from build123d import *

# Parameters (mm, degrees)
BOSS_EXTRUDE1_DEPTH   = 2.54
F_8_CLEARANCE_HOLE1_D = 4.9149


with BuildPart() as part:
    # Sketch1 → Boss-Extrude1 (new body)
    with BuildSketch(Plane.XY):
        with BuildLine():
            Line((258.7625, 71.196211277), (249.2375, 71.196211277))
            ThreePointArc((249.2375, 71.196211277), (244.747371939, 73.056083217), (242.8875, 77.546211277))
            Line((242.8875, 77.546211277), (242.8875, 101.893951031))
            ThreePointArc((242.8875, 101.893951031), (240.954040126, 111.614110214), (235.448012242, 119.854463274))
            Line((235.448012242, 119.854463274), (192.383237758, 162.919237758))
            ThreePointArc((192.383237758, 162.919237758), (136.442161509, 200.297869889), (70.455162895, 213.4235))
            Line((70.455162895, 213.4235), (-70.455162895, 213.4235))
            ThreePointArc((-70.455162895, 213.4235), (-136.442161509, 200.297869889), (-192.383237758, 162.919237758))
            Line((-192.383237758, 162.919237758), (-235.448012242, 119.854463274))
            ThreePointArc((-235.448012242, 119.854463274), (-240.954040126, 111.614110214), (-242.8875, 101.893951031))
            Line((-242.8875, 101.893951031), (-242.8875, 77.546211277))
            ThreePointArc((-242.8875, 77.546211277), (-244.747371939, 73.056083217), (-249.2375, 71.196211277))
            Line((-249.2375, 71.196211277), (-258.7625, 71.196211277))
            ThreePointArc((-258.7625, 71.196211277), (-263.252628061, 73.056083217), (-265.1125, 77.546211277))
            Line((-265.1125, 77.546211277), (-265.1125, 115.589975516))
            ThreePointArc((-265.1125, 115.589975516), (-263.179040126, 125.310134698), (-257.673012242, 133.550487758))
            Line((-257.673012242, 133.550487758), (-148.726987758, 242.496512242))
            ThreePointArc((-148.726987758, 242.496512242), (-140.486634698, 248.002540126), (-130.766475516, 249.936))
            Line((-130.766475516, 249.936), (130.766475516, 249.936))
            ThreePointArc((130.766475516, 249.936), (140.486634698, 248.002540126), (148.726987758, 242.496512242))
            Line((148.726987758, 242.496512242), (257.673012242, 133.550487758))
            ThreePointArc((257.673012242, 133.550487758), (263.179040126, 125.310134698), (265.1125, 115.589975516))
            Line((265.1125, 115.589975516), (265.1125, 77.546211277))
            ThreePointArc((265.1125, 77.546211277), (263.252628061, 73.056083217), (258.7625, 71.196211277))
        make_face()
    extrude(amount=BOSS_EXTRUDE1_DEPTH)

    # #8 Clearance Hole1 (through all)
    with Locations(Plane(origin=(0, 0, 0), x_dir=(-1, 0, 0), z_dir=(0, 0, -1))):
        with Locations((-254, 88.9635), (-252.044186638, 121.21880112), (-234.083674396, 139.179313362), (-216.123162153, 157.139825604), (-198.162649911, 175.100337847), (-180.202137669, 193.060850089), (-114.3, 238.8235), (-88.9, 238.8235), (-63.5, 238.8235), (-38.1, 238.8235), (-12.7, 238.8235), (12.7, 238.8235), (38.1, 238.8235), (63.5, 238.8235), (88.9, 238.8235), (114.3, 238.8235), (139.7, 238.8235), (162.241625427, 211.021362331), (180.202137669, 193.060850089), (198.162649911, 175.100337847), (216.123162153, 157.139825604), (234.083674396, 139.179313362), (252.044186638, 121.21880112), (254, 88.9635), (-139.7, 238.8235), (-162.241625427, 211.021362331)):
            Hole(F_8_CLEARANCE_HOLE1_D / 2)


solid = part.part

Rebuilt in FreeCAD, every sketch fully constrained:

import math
import FreeCAD as App
import Part
import Sketcher
from FreeCAD import Vector
Q = App.Units.Quantity

doc = App.newDocument("Part")
body = doc.addObject("PartDesign::Body", "Body")

# Sketch on XY plane
sketch1 = body.newObject("Sketcher::SketchObject", "Sketch")
sketch1.AttachmentSupport = (doc.getObject("XY_Plane"), [""])
sketch1.MapMode = "FlatFace"
sketch1.addGeometry([
    Part.LineSegment(Vector(249, 71, 0), Vector(259, 71, 0)),  # 0
    Part.ArcOfCircle(Part.Circle(Vector(259, 78, 0), Vector(0, 0, 1), 6), math.radians(-90), math.radians(0)),  # 1
    Part.LineSegment(Vector(265, 78, 0), Vector(265, 116, 0)),  # 2
    Part.ArcOfCircle(Part.Circle(Vector(240, 116, 0), Vector(0, 0, 1), 25), math.radians(0), math.radians(45)),  # 3
    Part.LineSegment(Vector(258, 134, 0), Vector(149, 242, 0)),  # 4
    Part.ArcOfCircle(Part.Circle(Vector(131, 225, 0), Vector(0, 0, 1), 25), math.radians(45), math.radians(90)),  # 5
    Part.LineSegment(Vector(131, 250, 0), Vector(-131, 250, 0)),  # 6
    Part.ArcOfCircle(Part.Circle(Vector(-131, 225, 0), Vector(0, 0, 1), 25), math.radians(90), math.radians(135)),  # 7
    Part.LineSegment(Vector(-149, 242, 0), Vector(-258, 134, 0)),  # 8
    Part.ArcOfCircle(Part.Circle(Vector(-240, 116, 0), Vector(0, 0, 1), 25), math.radians(135), math.radians(180)),  # 9
    Part.LineSegment(Vector(-265, 116, 0), Vector(-265, 78, 0)),  # 10
    Part.ArcOfCircle(Part.Circle(Vector(-259, 78, 0), Vector(0, 0, 1), 6), math.radians(180), math.radians(270)),  # 11
    Part.LineSegment(Vector(-259, 71, 0), Vector(-249, 71, 0)),  # 12
    Part.ArcOfCircle(Part.Circle(Vector(-249, 78, 0), Vector(0, 0, 1), 6), math.radians(-90), math.radians(0)),  # 13
    Part.LineSegment(Vector(-243, 78, 0), Vector(-243, 102, 0)),  # 14
    Part.ArcOfCircle(Part.Circle(Vector(-217, 102, 0), Vector(0, 0, 1), 25), math.radians(135), math.radians(180)),  # 15
    Part.LineSegment(Vector(-235, 120, 0), Vector(-192, 163, 0)),  # 16
    Part.ArcOfCircle(Part.Circle(Vector(-70, 41, 0), Vector(0, 0, 1), 172), math.radians(90), math.radians(135)),  # 17
    Part.LineSegment(Vector(-70, 213, 0), Vector(70, 213, 0)),  # 18
    Part.ArcOfCircle(Part.Circle(Vector(70, 41, 0), Vector(0, 0, 1), 172), math.radians(45), math.radians(90)),  # 19
    Part.LineSegment(Vector(192, 163, 0), Vector(235, 120, 0)),  # 20
    Part.ArcOfCircle(Part.Circle(Vector(217, 102, 0), Vector(0, 0, 1), 25), math.radians(0), math.radians(45)),  # 21
    Part.LineSegment(Vector(243, 102, 0), Vector(243, 78, 0)),  # 22
    Part.ArcOfCircle(Part.Circle(Vector(249, 78, 0), Vector(0, 0, 1), 6), math.radians(180), math.radians(270)),  # 23
], False)
sketch1.addConstraint([
    Sketcher.Constraint("Tangent", 0, 2, 1, 1),
    Sketcher.Constraint("Tangent", 1, 2, 2, 1),
    Sketcher.Constraint("Tangent", 2, 2, 3, 1),
    Sketcher.Constraint("Tangent", 3, 2, 4, 1),
    Sketcher.Constraint("Tangent", 4, 2, 5, 1),
    Sketcher.Constraint("Tangent", 5, 2, 6, 1),
    Sketcher.Constraint("Tangent", 6, 2, 7, 1),
    Sketcher.Constraint("Tangent", 7, 2, 8, 1),
    Sketcher.Constraint("Tangent", 8, 2, 9, 1),
    Sketcher.Constraint("Tangent", 9, 2, 10, 1),
    Sketcher.Constraint("Tangent", 10, 2, 11, 1),
    Sketcher.Constraint("Tangent", 11, 2, 12, 1),
    Sketcher.Constraint("Tangent", 12, 2, 13, 1),
    Sketcher.Constraint("Tangent", 13, 2, 14, 1),
    Sketcher.Constraint("Tangent", 14, 2, 15, 2),
    Sketcher.Constraint("Tangent", 15, 1, 16, 1),
    Sketcher.Constraint("Tangent", 16, 2, 17, 2),
    Sketcher.Constraint("Tangent", 17, 1, 18, 1),
    Sketcher.Constraint("Tangent", 18, 2, 19, 2),
    Sketcher.Constraint("Tangent", 19, 1, 20, 1),
    Sketcher.Constraint("Tangent", 20, 2, 21, 2),
    Sketcher.Constraint("Tangent", 21, 1, 22, 1),
    Sketcher.Constraint("Tangent", 22, 2, 23, 1),
    Sketcher.Constraint("Tangent", 23, 2, 0, 1),
    Sketcher.Constraint("Horizontal", 0),
    Sketcher.Constraint("Vertical", 2),
    Sketcher.Constraint("Horizontal", 6),
    Sketcher.Constraint("Vertical", 10),
    Sketcher.Constraint("Horizontal", 12),
    Sketcher.Constraint("Vertical", 14),
    Sketcher.Constraint("Horizontal", 18),
    Sketcher.Constraint("Vertical", 22),
    Sketcher.Constraint("Equal", 3, 5),
    Sketcher.Constraint("Equal", 5, 7),
    Sketcher.Constraint("Equal", 7, 9),
    Sketcher.Constraint("Equal", 1, 11),
    Sketcher.Constraint("Equal", 11, 13),
    Sketcher.Constraint("Equal", 9, 15),
    Sketcher.Constraint("Equal", 17, 19),
    Sketcher.Constraint("Equal", 15, 21),
    Sketcher.Constraint("Equal", 13, 23),
    Sketcher.Constraint("Symmetric", 3, 3, 9, 3, -2),
    Sketcher.Constraint("Symmetric", 15, 3, 21, 3, -2),
    Sketcher.Constraint("Perpendicular", 4, 8),
    Sketcher.Constraint("Parallel", 8, 16),
    Sketcher.Constraint("Perpendicular", 16, 20),
    Sketcher.Constraint("Horizontal", 1, 3, 11, 3),
    Sketcher.Constraint("Horizontal", 4, 2, 7, 2),
    Sketcher.Constraint("Radius", 3, Q("1 in")),
    Sketcher.Constraint("Radius", 1, Q("0.25 in")),
    Sketcher.Constraint("DistanceX", 0, 1, 0, 2, Q("0.375 in")),
    Sketcher.Constraint("DistanceY", -1, 1, 5, 3, Q("8.84 in")),
    Sketcher.Constraint("DistanceX", 13, 3, 3, 3, Q("19.25 in")),
    Sketcher.Constraint("DistanceY", 8, 2, 16, 2, Q("1.15625 in")),
    Sketcher.Constraint("DistanceY", 17, 1, 7, 3, Q("0.4375 in")),
    Sketcher.Constraint("Radius", 17, Q("172.432337 mm")),
    Sketcher.Constraint("DistanceY", 14, 1, 14, 2, Q("24.34774 mm")),
    Sketcher.Constraint("DistanceY", 13, 3, 7, 2, Q("164.950301 mm")),
])
pad1 = body.newObject("PartDesign::Pad", "Pad")
pad1.Profile = sketch1
pad1.Length = Q("0.1 in")

# Sketch on XY plane
sketch2 = body.newObject("Sketcher::SketchObject", "Sketch001")
sketch2.AttachmentSupport = (doc.getObject("XY_Plane"), [""])
sketch2.MapMode = "FlatFace"
sketch2.addGeometry([
    Part.Circle(Vector(254, 89, 0), Vector(0, 0, 1), 2.5),  # 0
    Part.Circle(Vector(252, 121.2, 0), Vector(0, 0, 1), 2.5),  # 1
    Part.Circle(Vector(234.1, 139.2, 0), Vector(0, 0, 1), 2.5),  # 2
    Part.Circle(Vector(216.1, 157.1, 0), Vector(0, 0, 1), 2.5),  # 3
    Part.Circle(Vector(198.2, 175.1, 0), Vector(0, 0, 1), 2.5),  # 4
    Part.Circle(Vector(180.2, 193.1, 0), Vector(0, 0, 1), 2.5),  # 5
    Part.Circle(Vector(114.3, 238.8, 0), Vector(0, 0, 1), 2.5),  # 6
    Part.Circle(Vector(88.9, 238.8, 0), Vector(0, 0, 1), 2.5),  # 7
    Part.Circle(Vector(63.5, 238.8, 0), Vector(0, 0, 1), 2.5),  # 8
    Part.Circle(Vector(38.1, 238.8, 0), Vector(0, 0, 1), 2.5),  # 9
    Part.Circle(Vector(12.7, 238.8, 0), Vector(0, 0, 1), 2.5),  # 10
    Part.Circle(Vector(-12.7, 238.8, 0), Vector(0, 0, 1), 2.5),  # 11
    Part.Circle(Vector(-38.1, 238.8, 0), Vector(0, 0, 1), 2.5),  # 12
    Part.Circle(Vector(-63.5, 238.8, 0), Vector(0, 0, 1), 2.5),  # 13
    Part.Circle(Vector(-88.9, 238.8, 0), Vector(0, 0, 1), 2.5),  # 14
    Part.Circle(Vector(-114.3, 238.8, 0), Vector(0, 0, 1), 2.5),  # 15
    Part.Circle(Vector(-139.7, 238.8, 0), Vector(0, 0, 1), 2.5),  # 16
    Part.Circle(Vector(-162.2, 211, 0), Vector(0, 0, 1), 2.5),  # 17
    Part.Circle(Vector(-180.2, 193.1, 0), Vector(0, 0, 1), 2.5),  # 18
    Part.Circle(Vector(-198.2, 175.1, 0), Vector(0, 0, 1), 2.5),  # 19
    Part.Circle(Vector(-216.1, 157.1, 0), Vector(0, 0, 1), 2.5),  # 20
    Part.Circle(Vector(-234.1, 139.2, 0), Vector(0, 0, 1), 2.5),  # 21
    Part.Circle(Vector(-252, 121.2, 0), Vector(0, 0, 1), 2.5),  # 22
    Part.Circle(Vector(-254, 89, 0), Vector(0, 0, 1), 2.5),  # 23
    Part.Circle(Vector(139.7, 238.8, 0), Vector(0, 0, 1), 2.5),  # 24
    Part.Circle(Vector(162.2, 211, 0), Vector(0, 0, 1), 2.5),  # 25
], False)
sketch2.addConstraint([
    Sketcher.Constraint("Equal", 0, 1),
    Sketcher.Constraint("Equal", 1, 2),
    Sketcher.Constraint("Equal", 2, 3),
    Sketcher.Constraint("Equal", 3, 4),
    Sketcher.Constraint("Equal", 4, 5),
    Sketcher.Constraint("Equal", 5, 6),
    Sketcher.Constraint("Equal", 6, 7),
    Sketcher.Constraint("Equal", 7, 8),
    Sketcher.Constraint("Equal", 8, 9),
    Sketcher.Constraint("Equal", 9, 10),
    Sketcher.Constraint("Equal", 10, 11),
    Sketcher.Constraint("Equal", 11, 12),
    Sketcher.Constraint("Equal", 12, 13),
    Sketcher.Constraint("Equal", 13, 14),
    Sketcher.Constraint("Equal", 14, 15),
    Sketcher.Constraint("Equal", 15, 16),
    Sketcher.Constraint("Equal", 16, 17),
    Sketcher.Constraint("Equal", 17, 18),
    Sketcher.Constraint("Equal", 18, 19),
    Sketcher.Constraint("Equal", 19, 20),
    Sketcher.Constraint("Equal", 20, 21),
    Sketcher.Constraint("Equal", 21, 22),
    Sketcher.Constraint("Equal", 22, 23),
    Sketcher.Constraint("Equal", 23, 24),
    Sketcher.Constraint("Equal", 24, 25),
    Sketcher.Constraint("Symmetric", 10, 3, 11, 3, -2),
    Sketcher.Constraint("Symmetric", 9, 3, 12, 3, -2),
    Sketcher.Constraint("Symmetric", 8, 3, 13, 3, -2),
    Sketcher.Constraint("Symmetric", 7, 3, 14, 3, -2),
    Sketcher.Constraint("Symmetric", 6, 3, 15, 3, -2),
    Sketcher.Constraint("Symmetric", 5, 3, 18, 3, -2),
    Sketcher.Constraint("Symmetric", 4, 3, 19, 3, -2),
    Sketcher.Constraint("Symmetric", 3, 3, 20, 3, -2),
    Sketcher.Constraint("Symmetric", 2, 3, 21, 3, -2),
    Sketcher.Constraint("Symmetric", 1, 3, 22, 3, -2),
    Sketcher.Constraint("Symmetric", 0, 3, 23, 3, -2),
    Sketcher.Constraint("Symmetric", 16, 3, 24, 3, -2),
    Sketcher.Constraint("Symmetric", 17, 3, 25, 3, -2),
    Sketcher.Constraint("Horizontal", 6, 3, 7, 3),
    Sketcher.Constraint("Horizontal", 7, 3, 8, 3),
    Sketcher.Constraint("Horizontal", 8, 3, 9, 3),
    Sketcher.Constraint("Horizontal", 9, 3, 10, 3),
    Sketcher.Constraint("Horizontal", 15, 3, 16, 3),
    Sketcher.Constraint("DistanceX", -1, 1, 0, 3, Q("10 in")),
    Sketcher.Constraint("DistanceX", 7, 3, 6, 3, Q("1 in")),
    Sketcher.Constraint("DistanceX", 8, 3, 7, 3, Q("1 in")),
    Sketcher.Constraint("DistanceX", 9, 3, 8, 3, Q("1 in")),
    Sketcher.Constraint("DistanceX", 10, 3, 9, 3, Q("1 in")),
    Sketcher.Constraint("DistanceX", 11, 3, 10, 3, Q("1 in")),
    Sketcher.Constraint("DistanceX", 16, 3, 15, 3, Q("1 in")),
    Sketcher.Constraint("Diameter", 0, Q("0.1935 in")),
    Sketcher.Constraint("DistanceY", -1, 1, 0, 3, Q("3.5025 in")),
    Sketcher.Constraint("DistanceY", -1, 1, 6, 3, Q("9.4025 in")),
    Sketcher.Constraint("DistanceY", -1, 1, 1, 3, Q("121.218801 mm")),
    Sketcher.Constraint("DistanceX", -1, 1, 4, 3, Q("198.16265 mm")),
    Sketcher.Constraint("DistanceY", -1, 1, 5, 3, Q("193.06085 mm")),
    Sketcher.Constraint("DistanceX", 5, 3, 1, 3, Q("71.842049 mm")),
    Sketcher.Constraint("DistanceX", 21, 3, 17, 3, Q("71.842049 mm")),
    Sketcher.Constraint("DistanceY", 21, 3, 17, 3, Q("71.842049 mm")),
    Sketcher.Constraint("DistanceX", 22, 3, 17, 3, Q("89.802561 mm")),
    Sketcher.Constraint("DistanceY", 22, 3, 17, 3, Q("89.802561 mm")),
    Sketcher.Constraint("DistanceX", -1, 1, 1, 3, Q("252.044187 mm")),
    Sketcher.Constraint("DistanceX", -1, 1, 3, 3, Q("216.123162 mm")),
    Sketcher.Constraint("DistanceY", -1, 1, 3, 3, Q("157.139826 mm")),
    Sketcher.Constraint("DistanceY", -1, 1, 4, 3, Q("175.100338 mm")),
])
doc.recompute()
hole = body.newObject("PartDesign::Hole", "Hole")
hole.Profile = sketch2
hole.ThreadType = "None"
hole.Diameter = Q("0.1935 in")
hole.DepthType = "ThroughAll"
hole.Reversed = True

doc.recompute()
